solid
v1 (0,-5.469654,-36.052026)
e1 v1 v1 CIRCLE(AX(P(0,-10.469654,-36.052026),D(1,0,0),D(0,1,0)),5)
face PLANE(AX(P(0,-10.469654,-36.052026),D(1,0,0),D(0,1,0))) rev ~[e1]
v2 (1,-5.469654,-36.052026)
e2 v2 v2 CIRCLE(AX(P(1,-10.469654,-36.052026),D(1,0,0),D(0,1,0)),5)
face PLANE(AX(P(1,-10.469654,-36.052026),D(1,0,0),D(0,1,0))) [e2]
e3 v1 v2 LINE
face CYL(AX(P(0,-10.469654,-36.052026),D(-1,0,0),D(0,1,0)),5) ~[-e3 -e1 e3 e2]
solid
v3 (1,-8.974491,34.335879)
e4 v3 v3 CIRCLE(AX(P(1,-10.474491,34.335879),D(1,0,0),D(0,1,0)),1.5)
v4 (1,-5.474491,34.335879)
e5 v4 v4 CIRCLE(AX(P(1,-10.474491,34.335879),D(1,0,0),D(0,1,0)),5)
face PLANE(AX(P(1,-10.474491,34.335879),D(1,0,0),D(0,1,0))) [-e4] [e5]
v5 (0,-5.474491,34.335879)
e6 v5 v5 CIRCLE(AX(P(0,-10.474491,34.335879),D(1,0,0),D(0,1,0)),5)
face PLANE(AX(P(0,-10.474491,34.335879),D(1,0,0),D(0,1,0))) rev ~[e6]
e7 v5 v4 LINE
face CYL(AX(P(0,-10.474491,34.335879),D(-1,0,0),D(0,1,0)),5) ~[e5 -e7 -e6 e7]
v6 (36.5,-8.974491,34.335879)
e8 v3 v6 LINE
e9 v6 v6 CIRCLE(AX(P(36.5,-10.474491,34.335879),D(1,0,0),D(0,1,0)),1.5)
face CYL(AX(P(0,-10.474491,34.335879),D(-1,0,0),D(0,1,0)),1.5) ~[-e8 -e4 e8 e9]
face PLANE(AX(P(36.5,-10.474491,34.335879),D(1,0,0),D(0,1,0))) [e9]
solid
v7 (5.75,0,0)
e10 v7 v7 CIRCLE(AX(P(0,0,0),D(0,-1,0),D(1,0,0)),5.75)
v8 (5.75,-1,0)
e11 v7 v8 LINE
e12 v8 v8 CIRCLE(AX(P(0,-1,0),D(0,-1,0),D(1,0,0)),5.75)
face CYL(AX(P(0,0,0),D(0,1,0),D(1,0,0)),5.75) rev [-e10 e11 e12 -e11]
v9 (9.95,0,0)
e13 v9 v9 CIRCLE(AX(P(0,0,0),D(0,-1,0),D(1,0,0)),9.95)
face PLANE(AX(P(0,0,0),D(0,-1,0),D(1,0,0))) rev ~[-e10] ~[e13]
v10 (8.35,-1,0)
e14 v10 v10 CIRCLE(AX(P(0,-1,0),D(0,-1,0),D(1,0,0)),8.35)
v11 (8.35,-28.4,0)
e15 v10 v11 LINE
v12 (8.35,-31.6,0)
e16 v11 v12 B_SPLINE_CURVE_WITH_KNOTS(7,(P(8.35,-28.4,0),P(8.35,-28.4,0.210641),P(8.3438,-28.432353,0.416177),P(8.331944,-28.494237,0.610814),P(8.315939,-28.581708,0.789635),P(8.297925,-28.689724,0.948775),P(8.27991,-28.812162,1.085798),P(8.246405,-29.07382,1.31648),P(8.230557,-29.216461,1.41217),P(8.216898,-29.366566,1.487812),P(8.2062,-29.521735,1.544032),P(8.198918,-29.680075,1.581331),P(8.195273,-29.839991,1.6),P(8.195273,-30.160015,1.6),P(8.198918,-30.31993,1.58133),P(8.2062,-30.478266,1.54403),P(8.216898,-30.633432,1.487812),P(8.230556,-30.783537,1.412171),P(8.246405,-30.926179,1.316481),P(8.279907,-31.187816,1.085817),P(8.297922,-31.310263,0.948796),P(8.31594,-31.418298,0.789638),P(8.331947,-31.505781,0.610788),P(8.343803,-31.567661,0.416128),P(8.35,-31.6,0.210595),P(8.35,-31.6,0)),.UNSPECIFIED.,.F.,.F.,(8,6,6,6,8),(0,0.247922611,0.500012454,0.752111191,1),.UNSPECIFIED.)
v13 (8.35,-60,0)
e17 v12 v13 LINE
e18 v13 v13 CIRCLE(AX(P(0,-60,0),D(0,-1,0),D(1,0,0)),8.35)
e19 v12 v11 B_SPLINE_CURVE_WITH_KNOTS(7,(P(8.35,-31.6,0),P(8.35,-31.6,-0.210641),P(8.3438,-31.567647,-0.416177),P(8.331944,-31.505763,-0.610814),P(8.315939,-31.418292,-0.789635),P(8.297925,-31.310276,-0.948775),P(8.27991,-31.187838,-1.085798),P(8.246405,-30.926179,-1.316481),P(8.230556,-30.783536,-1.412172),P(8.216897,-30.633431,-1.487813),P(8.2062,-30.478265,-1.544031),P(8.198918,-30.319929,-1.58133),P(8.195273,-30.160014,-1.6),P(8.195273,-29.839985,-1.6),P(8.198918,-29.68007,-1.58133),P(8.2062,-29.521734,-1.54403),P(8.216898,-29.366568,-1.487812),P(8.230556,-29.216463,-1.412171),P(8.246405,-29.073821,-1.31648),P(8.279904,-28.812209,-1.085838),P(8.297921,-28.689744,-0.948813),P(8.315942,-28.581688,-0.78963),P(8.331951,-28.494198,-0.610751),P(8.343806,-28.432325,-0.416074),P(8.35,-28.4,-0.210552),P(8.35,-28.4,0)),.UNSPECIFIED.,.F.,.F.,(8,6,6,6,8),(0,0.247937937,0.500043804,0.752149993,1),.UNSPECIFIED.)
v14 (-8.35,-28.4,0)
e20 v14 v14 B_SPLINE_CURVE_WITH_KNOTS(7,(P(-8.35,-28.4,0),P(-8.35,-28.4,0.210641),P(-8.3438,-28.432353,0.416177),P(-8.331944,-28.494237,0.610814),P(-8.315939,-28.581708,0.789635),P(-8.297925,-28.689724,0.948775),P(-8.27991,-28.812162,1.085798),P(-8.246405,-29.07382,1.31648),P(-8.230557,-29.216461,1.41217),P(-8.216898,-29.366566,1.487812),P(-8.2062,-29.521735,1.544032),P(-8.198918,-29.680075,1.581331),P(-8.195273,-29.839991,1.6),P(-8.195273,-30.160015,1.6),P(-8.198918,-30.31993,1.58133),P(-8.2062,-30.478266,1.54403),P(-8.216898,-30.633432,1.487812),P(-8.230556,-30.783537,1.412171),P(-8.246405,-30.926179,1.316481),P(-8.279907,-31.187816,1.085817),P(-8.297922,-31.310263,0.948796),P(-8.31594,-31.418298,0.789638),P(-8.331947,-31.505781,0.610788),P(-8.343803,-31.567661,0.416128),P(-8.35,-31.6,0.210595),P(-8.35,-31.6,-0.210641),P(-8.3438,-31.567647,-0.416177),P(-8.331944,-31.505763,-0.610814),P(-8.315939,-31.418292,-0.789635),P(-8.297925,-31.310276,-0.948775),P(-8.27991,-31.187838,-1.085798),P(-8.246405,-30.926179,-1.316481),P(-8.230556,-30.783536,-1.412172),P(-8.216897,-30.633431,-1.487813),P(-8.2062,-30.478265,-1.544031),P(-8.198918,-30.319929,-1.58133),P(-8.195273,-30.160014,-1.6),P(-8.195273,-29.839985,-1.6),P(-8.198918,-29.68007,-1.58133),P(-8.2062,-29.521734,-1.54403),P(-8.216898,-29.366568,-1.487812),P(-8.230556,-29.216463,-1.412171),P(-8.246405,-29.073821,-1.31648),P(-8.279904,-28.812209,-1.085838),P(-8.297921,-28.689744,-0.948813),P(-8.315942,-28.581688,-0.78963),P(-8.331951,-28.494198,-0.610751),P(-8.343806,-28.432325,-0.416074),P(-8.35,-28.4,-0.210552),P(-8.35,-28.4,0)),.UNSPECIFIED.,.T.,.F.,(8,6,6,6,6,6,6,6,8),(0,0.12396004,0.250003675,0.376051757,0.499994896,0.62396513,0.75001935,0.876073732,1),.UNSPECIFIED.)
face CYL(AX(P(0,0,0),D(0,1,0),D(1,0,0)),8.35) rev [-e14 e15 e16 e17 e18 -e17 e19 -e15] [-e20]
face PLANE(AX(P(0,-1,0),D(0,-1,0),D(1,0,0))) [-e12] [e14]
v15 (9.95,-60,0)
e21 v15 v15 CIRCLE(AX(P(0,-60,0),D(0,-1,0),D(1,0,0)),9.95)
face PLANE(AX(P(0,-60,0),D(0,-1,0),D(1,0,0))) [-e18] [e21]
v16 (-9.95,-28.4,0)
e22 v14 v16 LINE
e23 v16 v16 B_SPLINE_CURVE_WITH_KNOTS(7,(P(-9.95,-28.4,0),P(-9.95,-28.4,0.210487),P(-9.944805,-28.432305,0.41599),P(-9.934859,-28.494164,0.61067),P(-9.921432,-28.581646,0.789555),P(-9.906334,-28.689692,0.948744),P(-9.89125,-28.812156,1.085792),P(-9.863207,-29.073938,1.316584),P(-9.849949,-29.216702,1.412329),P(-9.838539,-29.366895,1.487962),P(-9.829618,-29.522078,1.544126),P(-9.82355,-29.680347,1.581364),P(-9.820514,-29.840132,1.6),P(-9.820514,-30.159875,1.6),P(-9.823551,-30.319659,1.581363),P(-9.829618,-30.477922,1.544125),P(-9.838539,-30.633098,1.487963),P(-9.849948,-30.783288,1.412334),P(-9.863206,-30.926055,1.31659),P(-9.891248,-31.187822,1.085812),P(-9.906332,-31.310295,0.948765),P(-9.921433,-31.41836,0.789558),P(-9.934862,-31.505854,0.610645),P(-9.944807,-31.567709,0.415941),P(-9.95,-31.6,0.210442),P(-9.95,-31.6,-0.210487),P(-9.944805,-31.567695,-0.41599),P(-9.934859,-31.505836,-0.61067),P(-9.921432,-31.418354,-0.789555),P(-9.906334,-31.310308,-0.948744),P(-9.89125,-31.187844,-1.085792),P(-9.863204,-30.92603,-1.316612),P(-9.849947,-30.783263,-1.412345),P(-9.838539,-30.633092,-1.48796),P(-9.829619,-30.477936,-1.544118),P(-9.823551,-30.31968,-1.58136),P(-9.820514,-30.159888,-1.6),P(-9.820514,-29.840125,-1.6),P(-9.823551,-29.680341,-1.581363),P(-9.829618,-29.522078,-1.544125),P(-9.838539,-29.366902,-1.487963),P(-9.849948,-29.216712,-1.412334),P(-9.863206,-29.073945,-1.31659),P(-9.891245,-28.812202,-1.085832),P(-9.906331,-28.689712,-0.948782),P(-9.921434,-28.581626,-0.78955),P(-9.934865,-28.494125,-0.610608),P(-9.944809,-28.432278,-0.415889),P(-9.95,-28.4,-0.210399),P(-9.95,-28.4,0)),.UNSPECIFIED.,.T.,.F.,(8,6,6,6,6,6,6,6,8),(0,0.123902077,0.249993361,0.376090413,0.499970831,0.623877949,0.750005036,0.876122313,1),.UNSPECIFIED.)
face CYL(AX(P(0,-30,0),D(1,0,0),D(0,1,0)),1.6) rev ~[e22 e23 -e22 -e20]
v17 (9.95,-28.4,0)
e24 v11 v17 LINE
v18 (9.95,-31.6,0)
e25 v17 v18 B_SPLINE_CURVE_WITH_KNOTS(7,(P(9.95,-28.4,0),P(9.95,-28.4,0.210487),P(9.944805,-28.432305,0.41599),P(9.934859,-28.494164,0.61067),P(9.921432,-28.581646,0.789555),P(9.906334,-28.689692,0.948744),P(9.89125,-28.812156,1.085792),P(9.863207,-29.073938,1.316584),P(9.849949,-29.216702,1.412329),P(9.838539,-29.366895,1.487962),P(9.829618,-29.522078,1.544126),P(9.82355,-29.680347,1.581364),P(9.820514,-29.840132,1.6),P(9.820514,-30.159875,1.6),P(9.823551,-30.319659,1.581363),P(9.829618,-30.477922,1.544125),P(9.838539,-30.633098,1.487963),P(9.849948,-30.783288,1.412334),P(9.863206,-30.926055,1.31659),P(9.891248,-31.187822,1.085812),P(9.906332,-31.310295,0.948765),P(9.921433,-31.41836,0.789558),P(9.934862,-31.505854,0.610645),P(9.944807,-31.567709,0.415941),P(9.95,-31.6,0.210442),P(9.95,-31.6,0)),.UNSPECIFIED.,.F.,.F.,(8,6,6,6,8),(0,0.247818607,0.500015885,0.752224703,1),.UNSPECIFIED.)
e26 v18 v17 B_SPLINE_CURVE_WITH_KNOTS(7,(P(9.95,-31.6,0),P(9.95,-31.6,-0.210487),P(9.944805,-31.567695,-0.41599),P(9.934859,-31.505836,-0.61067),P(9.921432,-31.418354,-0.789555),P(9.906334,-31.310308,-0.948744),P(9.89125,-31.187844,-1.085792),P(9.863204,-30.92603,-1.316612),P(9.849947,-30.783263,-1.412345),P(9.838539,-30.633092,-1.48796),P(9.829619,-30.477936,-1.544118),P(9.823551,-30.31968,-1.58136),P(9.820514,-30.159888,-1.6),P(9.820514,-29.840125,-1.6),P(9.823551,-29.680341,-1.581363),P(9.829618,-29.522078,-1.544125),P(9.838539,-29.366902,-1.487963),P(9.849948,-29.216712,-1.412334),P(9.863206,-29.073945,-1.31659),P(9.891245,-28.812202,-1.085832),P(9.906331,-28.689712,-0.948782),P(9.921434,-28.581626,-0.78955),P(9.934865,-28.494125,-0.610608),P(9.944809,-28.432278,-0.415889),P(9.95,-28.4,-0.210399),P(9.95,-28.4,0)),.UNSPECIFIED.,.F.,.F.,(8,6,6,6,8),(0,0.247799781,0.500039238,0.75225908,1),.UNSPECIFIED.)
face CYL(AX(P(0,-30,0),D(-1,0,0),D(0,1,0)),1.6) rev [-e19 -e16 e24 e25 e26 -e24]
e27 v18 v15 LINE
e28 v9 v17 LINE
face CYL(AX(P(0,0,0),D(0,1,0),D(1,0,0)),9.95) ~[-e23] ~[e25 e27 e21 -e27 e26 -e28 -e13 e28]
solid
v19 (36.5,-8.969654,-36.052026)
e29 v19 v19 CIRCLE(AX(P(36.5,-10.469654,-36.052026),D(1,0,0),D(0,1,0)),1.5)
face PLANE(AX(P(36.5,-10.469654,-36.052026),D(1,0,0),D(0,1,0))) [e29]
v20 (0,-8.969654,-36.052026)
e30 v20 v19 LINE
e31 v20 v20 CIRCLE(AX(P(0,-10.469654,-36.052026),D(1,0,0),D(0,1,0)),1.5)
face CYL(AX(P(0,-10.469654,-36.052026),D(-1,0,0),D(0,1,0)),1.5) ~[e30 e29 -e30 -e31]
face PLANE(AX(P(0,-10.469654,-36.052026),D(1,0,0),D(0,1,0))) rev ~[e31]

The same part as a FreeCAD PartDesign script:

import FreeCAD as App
import Part
import Sketcher
Q = App.Units.Quantity

doc = App.newDocument("Part")
body = doc.addObject("PartDesign::Body", "Body")

# Sketch on XZ plane
sketch1 = body.newObject("Sketcher::SketchObject", "Sketch")
sketch1.AttachmentSupport = (doc.getObject("XZ_Plane"), [""])
sketch1.MapMode = "FlatFace"
sketch1.addGeometry([
    Part.Circle(App.Vector(0, 0, 0), App.Vector(0, 0, 1), 10),
    Part.Circle(App.Vector(0, 0, 0), App.Vector(0, 0, 1), 8),
], False)
sketch1.addConstraint([
    Sketcher.Constraint("Coincident", 0, 3, -1, 1),
    Sketcher.Constraint("Coincident", 1, 3, -1, 1),
    Sketcher.Constraint("Diameter", 0, Q("19.9 mm")),
    Sketcher.Constraint("Diameter", 1, Q("16.7 mm")),
])
pad1 = body.newObject("PartDesign::Pad", "Pad")
pad1.Profile = sketch1
pad1.Length = 60

# Sketch on XZ plane
sketch2 = body.newObject("Sketcher::SketchObject", "Sketch001")
sketch2.AttachmentSupport = (doc.getObject("XZ_Plane"), [""])
sketch2.MapMode = "FlatFace"
sketch2.addGeometry([
    Part.Circle(App.Vector(0, 0, 0), App.Vector(0, 0, 1), 8),
    Part.Circle(App.Vector(0, 0, 0), App.Vector(0, 0, 1), 6),
], False)
sketch2.addConstraint([
    Sketcher.Constraint("Coincident", 0, 3, -1, 1),
    Sketcher.Constraint("Coincident", 1, 3, -1, 1),
    Sketcher.Constraint("Diameter", 0, Q("16.7 mm")),
    Sketcher.Constraint("Diameter", 1, Q("11.5 mm")),
])
pad2 = body.newObject("PartDesign::Pad", "Pad001")
pad2.Profile = sketch2
pad2.Length = 1

# Sketch on YZ plane
sketch3 = body.newObject("Sketcher::SketchObject", "Sketch002")
sketch3.AttachmentSupport = (doc.getObject("YZ_Plane"), [""])
sketch3.MapMode = "FlatFace"
sketch3.addGeometry(Part.Circle(App.Vector(-30, 0, 0), App.Vector(0, 0, 1), 1.6), False)
sketch3.addConstraint([
    Sketcher.Constraint("PointOnObject", 0, 3, -1),
    Sketcher.Constraint("Diameter", 0, Q("3.2 mm")),
    Sketcher.Constraint("DistanceX", 0, 3, -1, 1, Q("30 mm")),
])
pocket1 = body.newObject("PartDesign::Pocket", "Pocket")
pocket1.Profile = sketch3
pocket1.Type = "ThroughAll"

# Sketch on YZ plane
sketch4 = body.newObject("Sketcher::SketchObject", "Sketch003")
sketch4.AttachmentSupport = (doc.getObject("YZ_Plane"), [""])
sketch4.MapMode = "FlatFace"
sketch4.addGeometry(Part.Circle(App.Vector(-30, 0, 0), App.Vector(0, 0, 1), 1.6), False)
sketch4.addConstraint([
    Sketcher.Constraint("PointOnObject", 0, 3, -1),
    Sketcher.Constraint("Diameter", 0, Q("3.2 mm")),
    Sketcher.Constraint("DistanceX", 0, 3, -1, 1, Q("30 mm")),
])
pocket2 = body.newObject("PartDesign::Pocket", "Pocket001")
pocket2.Profile = sketch4
pocket2.Type = "ThroughAll"
pocket2.Reversed = True
body2 = doc.addObject("PartDesign::Body", "Body001")

# Sketch on YZ plane
sketch5 = body2.newObject("Sketcher::SketchObject", "Sketch004")
sketch5.AttachmentSupport = (doc.getObject("YZ_Plane001"), [""])
sketch5.MapMode = "FlatFace"
sketch5.addGeometry(Part.Circle(App.Vector(-10, -36, 0), App.Vector(0, 0, 1), 5), False)
sketch5.addConstraint([
    Sketcher.Constraint("Diameter", 0, Q("10 mm")),
    Sketcher.Constraint("DistanceX", 0, 3, -1, 1, Q("10.469654 mm")),
    Sketcher.Constraint("DistanceY", 0, 3, -1, 1, Q("36.052026 mm")),
])
pad3 = body2.newObject("PartDesign::Pad", "Pad002")
pad3.Profile = sketch5
pad3.Length = 1
body3 = doc.addObject("PartDesign::Body", "Body002")

# Sketch on YZ plane
sketch6 = body3.newObject("Sketcher::SketchObject", "Sketch005")
sketch6.AttachmentSupport = (doc.getObject("YZ_Plane002"), [""])
sketch6.MapMode = "FlatFace"
sketch6.addGeometry(Part.Circle(App.Vector(-10.5, -36.1, 0), App.Vector(0, 0, 1), 1.5), False)
sketch6.addConstraint([
    Sketcher.Constraint("Diameter", 0, Q("3 mm")),
    Sketcher.Constraint("DistanceX", 0, 3, -1, 1, Q("10.469654 mm")),
    Sketcher.Constraint("DistanceY", 0, 3, -1, 1, Q("36.052026 mm")),
])
pad4 = body3.newObject("PartDesign::Pad", "Pad003")
pad4.Profile = sketch6
pad4.Length = 36.5
body4 = doc.addObject("PartDesign::Body", "Body003")

# Sketch on YZ plane
sketch7 = body4.newObject("Sketcher::SketchObject", "Sketch006")
sketch7.AttachmentSupport = (doc.getObject("YZ_Plane003"), [""])
sketch7.MapMode = "FlatFace"
sketch7.addGeometry(Part.Circle(App.Vector(-10.5, 34.3, 0), App.Vector(0, 0, 1), 1.5), False)
sketch7.addConstraint([
    Sketcher.Constraint("Diameter", 0, Q("3 mm")),
    Sketcher.Constraint("DistanceX", 0, 3, -1, 1, Q("10.474491 mm")),
    Sketcher.Constraint("DistanceY", -1, 1, 0, 3, Q("34.335879 mm")),
])
pad5 = body4.newObject("PartDesign::Pad", "Pad004")
pad5.Profile = sketch7
pad5.Length = 36.5

# Sketch on YZ plane
sketch8 = body4.newObject("Sketcher::SketchObject", "Sketch007")
sketch8.AttachmentSupport = (doc.getObject("YZ_Plane003"), [""])
sketch8.MapMode = "FlatFace"
sketch8.addGeometry([
    Part.Circle(App.Vector(-10.5, 34.3, 0), App.Vector(0, 0, 1), 5),
    Part.Circle(App.Vector(-10.5, 34.3, 0), App.Vector(0, 0, 1), 1.5),
], False)
sketch8.addConstraint([
    Sketcher.Constraint("Coincident", 1, 3, 0, 3),
    Sketcher.Constraint("Diameter", 0, Q("10 mm")),
    Sketcher.Constraint("Diameter", 1, Q("3 mm")),
    Sketcher.Constraint("DistanceX", 0, 3, -1, 1, Q("10.474491 mm")),
    Sketcher.Constraint("DistanceY", -1, 1, 0, 3, Q("34.335879 mm")),
])
pad6 = body4.newObject("PartDesign::Pad", "Pad005")
pad6.Profile = sketch8
pad6.Length = 1

doc.recompute()
